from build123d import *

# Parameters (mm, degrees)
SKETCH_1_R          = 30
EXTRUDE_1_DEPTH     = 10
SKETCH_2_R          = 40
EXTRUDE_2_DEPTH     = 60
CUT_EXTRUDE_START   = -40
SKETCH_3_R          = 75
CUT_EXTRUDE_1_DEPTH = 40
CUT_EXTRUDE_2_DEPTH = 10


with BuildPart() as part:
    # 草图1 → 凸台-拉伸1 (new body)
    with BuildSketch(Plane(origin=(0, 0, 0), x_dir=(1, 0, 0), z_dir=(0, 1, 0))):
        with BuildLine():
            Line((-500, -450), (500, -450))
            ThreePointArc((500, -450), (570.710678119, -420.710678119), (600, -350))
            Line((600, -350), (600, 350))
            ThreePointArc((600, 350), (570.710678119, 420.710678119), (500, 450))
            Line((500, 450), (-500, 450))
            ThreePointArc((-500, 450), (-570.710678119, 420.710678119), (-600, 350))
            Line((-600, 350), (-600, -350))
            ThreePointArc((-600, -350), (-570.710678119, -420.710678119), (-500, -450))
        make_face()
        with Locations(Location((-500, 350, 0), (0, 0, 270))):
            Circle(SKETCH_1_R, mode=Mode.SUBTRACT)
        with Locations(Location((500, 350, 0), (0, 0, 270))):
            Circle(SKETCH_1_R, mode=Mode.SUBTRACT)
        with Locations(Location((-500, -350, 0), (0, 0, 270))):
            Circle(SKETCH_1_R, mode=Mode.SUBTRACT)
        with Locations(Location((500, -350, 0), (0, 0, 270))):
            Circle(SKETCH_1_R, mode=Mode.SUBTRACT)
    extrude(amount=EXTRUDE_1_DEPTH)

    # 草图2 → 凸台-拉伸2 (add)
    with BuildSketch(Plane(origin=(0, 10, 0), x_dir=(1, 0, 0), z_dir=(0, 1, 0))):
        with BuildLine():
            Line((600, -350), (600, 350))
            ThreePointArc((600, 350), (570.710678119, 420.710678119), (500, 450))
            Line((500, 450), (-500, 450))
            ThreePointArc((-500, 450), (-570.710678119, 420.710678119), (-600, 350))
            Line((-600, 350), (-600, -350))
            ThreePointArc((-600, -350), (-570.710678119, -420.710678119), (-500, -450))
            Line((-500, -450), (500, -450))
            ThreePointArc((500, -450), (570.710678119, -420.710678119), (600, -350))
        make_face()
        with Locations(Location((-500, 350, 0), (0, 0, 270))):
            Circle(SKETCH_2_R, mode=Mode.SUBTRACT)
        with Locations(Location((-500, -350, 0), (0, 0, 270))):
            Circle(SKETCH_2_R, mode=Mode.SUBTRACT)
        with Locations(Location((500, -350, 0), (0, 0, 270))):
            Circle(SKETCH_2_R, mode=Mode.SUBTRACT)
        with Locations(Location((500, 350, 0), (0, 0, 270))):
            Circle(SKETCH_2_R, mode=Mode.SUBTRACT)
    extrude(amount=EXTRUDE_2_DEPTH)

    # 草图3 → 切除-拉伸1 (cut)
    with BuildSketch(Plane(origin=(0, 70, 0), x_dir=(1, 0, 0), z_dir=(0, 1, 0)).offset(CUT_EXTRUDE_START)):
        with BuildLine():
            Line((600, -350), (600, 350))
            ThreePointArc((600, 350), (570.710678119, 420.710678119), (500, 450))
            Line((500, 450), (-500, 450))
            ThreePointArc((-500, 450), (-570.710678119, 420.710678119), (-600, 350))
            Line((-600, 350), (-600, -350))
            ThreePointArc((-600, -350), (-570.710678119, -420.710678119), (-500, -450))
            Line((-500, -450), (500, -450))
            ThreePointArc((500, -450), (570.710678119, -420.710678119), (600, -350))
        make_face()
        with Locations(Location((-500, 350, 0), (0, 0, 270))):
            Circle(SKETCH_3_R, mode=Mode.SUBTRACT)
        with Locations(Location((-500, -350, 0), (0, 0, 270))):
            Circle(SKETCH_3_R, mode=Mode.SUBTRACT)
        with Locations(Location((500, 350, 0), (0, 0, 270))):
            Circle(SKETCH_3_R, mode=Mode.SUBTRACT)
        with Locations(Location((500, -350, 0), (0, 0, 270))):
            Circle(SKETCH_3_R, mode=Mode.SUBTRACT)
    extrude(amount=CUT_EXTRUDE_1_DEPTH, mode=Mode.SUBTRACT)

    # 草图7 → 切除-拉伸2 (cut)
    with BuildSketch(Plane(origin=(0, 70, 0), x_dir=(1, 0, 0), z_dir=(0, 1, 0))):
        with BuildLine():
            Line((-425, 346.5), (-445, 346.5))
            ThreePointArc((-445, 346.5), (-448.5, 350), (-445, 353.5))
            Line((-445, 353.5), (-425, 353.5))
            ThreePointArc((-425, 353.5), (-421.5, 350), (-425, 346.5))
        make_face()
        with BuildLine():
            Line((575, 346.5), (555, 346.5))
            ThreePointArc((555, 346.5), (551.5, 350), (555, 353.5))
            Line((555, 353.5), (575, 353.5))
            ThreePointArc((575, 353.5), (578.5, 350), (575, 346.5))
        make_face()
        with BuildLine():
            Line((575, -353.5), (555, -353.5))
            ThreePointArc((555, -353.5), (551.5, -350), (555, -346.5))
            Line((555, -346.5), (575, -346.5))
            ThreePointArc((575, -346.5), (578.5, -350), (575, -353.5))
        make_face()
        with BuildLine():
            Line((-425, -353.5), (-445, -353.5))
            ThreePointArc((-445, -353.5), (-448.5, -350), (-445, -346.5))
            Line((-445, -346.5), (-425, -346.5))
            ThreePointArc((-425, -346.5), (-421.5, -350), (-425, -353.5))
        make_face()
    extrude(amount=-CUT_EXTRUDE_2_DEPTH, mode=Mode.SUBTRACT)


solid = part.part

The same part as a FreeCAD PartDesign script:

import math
import FreeCAD as App
import Part
import Sketcher

V = App.Vector
Q = App.Units.Quantity

doc = App.newDocument("Part")
body = doc.addObject("PartDesign::Body", "Body")

# Sketch on XZ plane
sketch1 = doc.addObject("Sketcher::SketchObject", "Sketch")
body.addObject(sketch1)
sketch1.AttachmentSupport = (doc.XZ_Plane, [""])
sketch1.MapMode = "FlatFace"
sketch1.addGeometry([
    Part.LineSegment(V(-500, 450, 0), V(500, 450, 0)),  # 0
    Part.ArcOfCircle(Part.Circle(V(500, 350, 0), V(0, 0, 1), 100), math.radians(0), math.radians(90)),  # 1
    Part.LineSegment(V(600, 350, 0), V(600, -350, 0)),  # 2
    Part.ArcOfCircle(Part.Circle(V(500, -350, 0), V(0, 0, 1), 100), math.radians(-90), math.radians(0)),  # 3
    Part.LineSegment(V(500, -450, 0), V(-500, -450, 0)),  # 4
    Part.ArcOfCircle(Part.Circle(V(-500, -350, 0), V(0, 0, 1), 100), math.radians(180), math.radians(270)),  # 5
    Part.LineSegment(V(-600, -350, 0), V(-600, 350, 0)),  # 6
    Part.ArcOfCircle(Part.Circle(V(-500, 350, 0), V(0, 0, 1), 100), math.radians(90), math.radians(180)),  # 7
    Part.Circle(V(-500, 350, 0), V(0, 0, 1), 30),  # 8
    Part.Circle(V(500, 350, 0), V(0, 0, 1), 30),  # 9
    Part.Circle(V(-500, -350, 0), V(0, 0, 1), 30),  # 10
    Part.Circle(V(500, -350, 0), V(0, 0, 1), 30),  # 11
], False)
sketch1.addConstraint([
    Sketcher.Constraint("Tangent", 0, 2, 1, 2),
    Sketcher.Constraint("Tangent", 1, 1, 2, 1),
    Sketcher.Constraint("Tangent", 2, 2, 3, 2),
    Sketcher.Constraint("Tangent", 3, 1, 4, 1),
    Sketcher.Constraint("Tangent", 4, 2, 5, 2),
    Sketcher.Constraint("Tangent", 5, 1, 6, 1),
    Sketcher.Constraint("Tangent", 6, 2, 7, 2),
    Sketcher.Constraint("Tangent", 7, 1, 0, 1),
    Sketcher.Constraint("Horizontal", 0),
    Sketcher.Constraint("Vertical", 2),
    Sketcher.Constraint("Horizontal", 4),
    Sketcher.Constraint("Vertical", 6),
    Sketcher.Constraint("Coincident", 8, 3, 7, 3),
    Sketcher.Constraint("Coincident", 9, 3, 1, 3),
    Sketcher.Constraint("Coincident", 10, 3, 5, 3),
    Sketcher.Constraint("Coincident", 11, 3, 3, 3),
    Sketcher.Constraint("Equal", 1, 3),
    Sketcher.Constraint("Equal", 3, 5),
    Sketcher.Constraint("Equal", 5, 7),
    Sketcher.Constraint("Equal", 8, 9),
    Sketcher.Constraint("Equal", 9, 10),
    Sketcher.Constraint("Equal", 10, 11),
    Sketcher.Constraint("Symmetric", 1, 3, 5, 3, -1, 1),
    Sketcher.Constraint("Diameter", 8, Q("60 mm")),
    Sketcher.Constraint("Radius", 1, Q("100 mm")),
    Sketcher.Constraint("DistanceX", 0, 1, 0, 2, Q("1000 mm")),
    Sketcher.Constraint("DistanceY", 2, 2, 2, 1, Q("700 mm")),
])
pad1 = doc.addObject("PartDesign::Pad", "Pad")
body.addObject(pad1)
pad1.Profile = sketch1
pad1.Length = 10
pad1.Reversed = True

# Sketch on XZ plane
sketch2 = doc.addObject("Sketcher::SketchObject", "Sketch001")
body.addObject(sketch2)
sketch2.AttachmentSupport = (doc.XZ_Plane, [""])
sketch2.MapMode = "FlatFace"
sketch2.AttachmentOffset = App.Placement(V(0, 0, -10), App.Rotation())
sketch2.addGeometry([
    Part.LineSegment(V(600, 350, 0), V(600, -350, 0)),  # 0
    Part.ArcOfCircle(Part.Circle(V(500, -350, 0), V(0, 0, 1), 100), math.radians(-90), math.radians(0)),  # 1
    Part.LineSegment(V(500, -450, 0), V(-500, -450, 0)),  # 2
    Part.ArcOfCircle(Part.Circle(V(-500, -350, 0), V(0, 0, 1), 100), math.radians(180), math.radians(270)),  # 3
    Part.LineSegment(V(-600, -350, 0), V(-600, 350, 0)),  # 4
    Part.ArcOfCircle(Part.Circle(V(-500, 350, 0), V(0, 0, 1), 100), math.radians(90), math.radians(180)),  # 5
    Part.LineSegment(V(-500, 450, 0), V(500, 450, 0)),  # 6
    Part.ArcOfCircle(Part.Circle(V(500, 350, 0), V(0, 0, 1), 100), math.radians(0), math.radians(90)),  # 7
    Part.Circle(V(-500, 350, 0), V(0, 0, 1), 40),  # 8
    Part.Circle(V(500, 350, 0), V(0, 0, 1), 40),  # 9
    Part.Circle(V(-500, -350, 0), V(0, 0, 1), 40),  # 10
    Part.Circle(V(500, -350, 0), V(0, 0, 1), 40),  # 11
], False)
sketch2.addConstraint([
    Sketcher.Constraint("Tangent", 0, 2, 1, 2),
    Sketcher.Constraint("Tangent", 1, 1, 2, 1),
    Sketcher.Constraint("Tangent", 2, 2, 3, 2),
    Sketcher.Constraint("Tangent", 3, 1, 4, 1),
    Sketcher.Constraint("Tangent", 4, 2, 5, 2),
    Sketcher.Constraint("Tangent", 5, 1, 6, 1),
    Sketcher.Constraint("Tangent", 6, 2, 7, 2),
    Sketcher.Constraint("Tangent", 7, 1, 0, 1),
    Sketcher.Constraint("Vertical", 0),
    Sketcher.Constraint("Horizontal", 2),
    Sketcher.Constraint("Vertical", 4),
    Sketcher.Constraint("Horizontal", 6),
    Sketcher.Constraint("Coincident", 8, 3, 5, 3),
    Sketcher.Constraint("Coincident", 9, 3, 7, 3),
    Sketcher.Constraint("Coincident", 10, 3, 3, 3),
    Sketcher.Constraint("Coincident", 11, 3, 1, 3),
    Sketcher.Constraint("Equal", 1, 3),
    Sketcher.Constraint("Equal", 3, 5),
    Sketcher.Constraint("Equal", 5, 7),
    Sketcher.Constraint("Equal", 8, 9),
    Sketcher.Constraint("Equal", 9, 10),
    Sketcher.Constraint("Equal", 10, 11),
    Sketcher.Constraint("Symmetric", 1, 3, 5, 3, -1, 1),
    Sketcher.Constraint("Diameter", 8, Q("80 mm")),
    Sketcher.Constraint("Radius", 1, Q("100 mm")),
    Sketcher.Constraint("DistanceX", 2, 2, 2, 1, Q("1000 mm")),
    Sketcher.Constraint("DistanceY", 0, 2, 0, 1, Q("700 mm")),
])
pad2 = doc.addObject("PartDesign::Pad", "Pad001")
body.addObject(pad2)
pad2.Profile = sketch2
pad2.Length = 60
pad2.Reversed = True

# Sketch on XZ plane
sketch3 = doc.addObject("Sketcher::SketchObject", "Sketch002")
body.addObject(sketch3)
sketch3.AttachmentSupport = (doc.XZ_Plane, [""])
sketch3.MapMode = "FlatFace"
sketch3.AttachmentOffset = App.Placement(V(0, 0, -30), App.Rotation())
sketch3.addGeometry([
    Part.LineSegment(V(600, 350, 0), V(600, -350, 0)),  # 0
    Part.ArcOfCircle(Part.Circle(V(500, -350, 0), V(0, 0, 1), 100), math.radians(-90), math.radians(0)),  # 1
    Part.LineSegment(V(500, -450, 0), V(-500, -450, 0)),  # 2
    Part.ArcOfCircle(Part.Circle(V(-500, -350, 0), V(0, 0, 1), 100), math.radians(180), math.radians(270)),  # 3
    Part.LineSegment(V(-600, -350, 0), V(-600, 350, 0)),  # 4
    Part.ArcOfCircle(Part.Circle(V(-500, 350, 0), V(0, 0, 1), 100), math.radians(90), math.radians(180)),  # 5
    Part.LineSegment(V(-500, 450, 0), V(500, 450, 0)),  # 6
    Part.ArcOfCircle(Part.Circle(V(500, 350, 0), V(0, 0, 1), 100), math.radians(0), math.radians(90)),  # 7
    Part.Circle(V(-500, 350, 0), V(0, 0, 1), 75),  # 8
    Part.Circle(V(500, 350, 0), V(0, 0, 1), 75),  # 9
    Part.Circle(V(-500, -350, 0), V(0, 0, 1), 75),  # 10
    Part.Circle(V(500, -350, 0), V(0, 0, 1), 75),  # 11
], False)
sketch3.addConstraint([
    Sketcher.Constraint("Tangent", 0, 2, 1, 2),
    Sketcher.Constraint("Tangent", 1, 1, 2, 1),
    Sketcher.Constraint("Tangent", 2, 2, 3, 2),
    Sketcher.Constraint("Tangent", 3, 1, 4, 1),
    Sketcher.Constraint("Tangent", 4, 2, 5, 2),
    Sketcher.Constraint("Tangent", 5, 1, 6, 1),
    Sketcher.Constraint("Tangent", 6, 2, 7, 2),
    Sketcher.Constraint("Tangent", 7, 1, 0, 1),
    Sketcher.Constraint("Vertical", 0),
    Sketcher.Constraint("Horizontal", 2),
    Sketcher.Constraint("Vertical", 4),
    Sketcher.Constraint("Horizontal", 6),
    Sketcher.Constraint("Coincident", 8, 3, 5, 3),
    Sketcher.Constraint("Coincident", 9, 3, 7, 3),
    Sketcher.Constraint("Coincident", 10, 3, 3, 3),
    Sketcher.Constraint("Coincident", 11, 3, 1, 3),
    Sketcher.Constraint("Equal", 1, 3),
    Sketcher.Constraint("Equal", 3, 5),
    Sketcher.Constraint("Equal", 5, 7),
    Sketcher.Constraint("Equal", 8, 9),
    Sketcher.Constraint("Equal", 9, 10),
    Sketcher.Constraint("Equal", 10, 11),
    Sketcher.Constraint("Symmetric", 1, 3, 5, 3, -1, 1),
    Sketcher.Constraint("Diameter", 8, Q("150 mm")),
    Sketcher.Constraint("Radius", 1, Q("100 mm")),
    Sketcher.Constraint("DistanceX", 2, 2, 2, 1, Q("1000 mm")),
    Sketcher.Constraint("DistanceY", 0, 2, 0, 1, Q("700 mm")),
])
pocket1 = doc.addObject("PartDesign::Pocket", "Pocket")
body.addObject(pocket1)
pocket1.Profile = sketch3
pocket1.Length = 40

# Sketch on XZ plane
sketch4 = doc.addObject("Sketcher::SketchObject", "Sketch003")
body.addObject(sketch4)
sketch4.AttachmentSupport = (doc.XZ_Plane, [""])
sketch4.MapMode = "FlatFace"
sketch4.AttachmentOffset = App.Placement(V(0, 0, -70), App.Rotation())
sketch4.addGeometry([
    Part.LineSegment(V(-445, -346.5, 0), V(-425, -346.5, 0)),  # 0
    Part.ArcOfCircle(Part.Circle(V(-425, -350, 0), V(0, 0, 1), 3.5), math.radians(-90), math.radians(90)),  # 1
    Part.LineSegment(V(-425, -353.5, 0), V(-445, -353.5, 0)),  # 2
    Part.ArcOfCircle(Part.Circle(V(-445, -350, 0), V(0, 0, 1), 3.5), math.radians(90), math.radians(270)),  # 3
    Part.LineSegment(V(555, -346.5, 0), V(575, -346.5, 0)),  # 4
    Part.ArcOfCircle(Part.Circle(V(575, -350, 0), V(0, 0, 1), 3.5), math.radians(-90), math.radians(90)),  # 5
    Part.LineSegment(V(575, -353.5, 0), V(555, -353.5, 0)),  # 6
    Part.ArcOfCircle(Part.Circle(V(555, -350, 0), V(0, 0, 1), 3.5), math.radians(90), math.radians(270)),  # 7
    Part.LineSegment(V(555, 353.5, 0), V(575, 353.5, 0)),  # 8
    Part.ArcOfCircle(Part.Circle(V(575, 350, 0), V(0, 0, 1), 3.5), math.radians(-90), math.radians(90)),  # 9
    Part.LineSegment(V(575, 346.5, 0), V(555, 346.5, 0)),  # 10
    Part.ArcOfCircle(Part.Circle(V(555, 350, 0), V(0, 0, 1), 3.5), math.radians(90), math.radians(270)),  # 11
    Part.LineSegment(V(-445, 353.5, 0), V(-425, 353.5, 0)),  # 12
    Part.ArcOfCircle(Part.Circle(V(-425, 350, 0), V(0, 0, 1), 3.5), math.radians(-90), math.radians(90)),  # 13
    Part.LineSegment(V(-425, 346.5, 0), V(-445, 346.5, 0)),  # 14
    Part.ArcOfCircle(Part.Circle(V(-445, 350, 0), V(0, 0, 1), 3.5), math.radians(90), math.radians(270)),  # 15
], False)
sketch4.addConstraint([
    Sketcher.Constraint("Tangent", 0, 2, 1, 2),
    Sketcher.Constraint("Tangent", 1, 1, 2, 1),
    Sketcher.Constraint("Tangent", 2, 2, 3, 2),
    Sketcher.Constraint("Tangent", 3, 1, 0, 1),
    Sketcher.Constraint("Tangent", 4, 2, 5, 2),
    Sketcher.Constraint("Tangent", 5, 1, 6, 1),
    Sketcher.Constraint("Tangent", 6, 2, 7, 2),
    Sketcher.Constraint("Tangent", 7, 1, 4, 1),
    Sketcher.Constraint("Tangent", 8, 2, 9, 2),
    Sketcher.Constraint("Tangent", 9, 1, 10, 1),
    Sketcher.Constraint("Tangent", 10, 2, 11, 2),
    Sketcher.Constraint("Tangent", 11, 1, 8, 1),
    Sketcher.Constraint("Tangent", 12, 2, 13, 2),
    Sketcher.Constraint("Tangent", 13, 1, 14, 1),
    Sketcher.Constraint("Tangent", 14, 2, 15, 2),
    Sketcher.Constraint("Tangent", 15, 1, 12, 1),
    Sketcher.Constraint("Horizontal", 0),
    Sketcher.Constraint("Horizontal", 2),
    Sketcher.Constraint("Horizontal", 4),
    Sketcher.Constraint("Horizontal", 6),
    Sketcher.Constraint("Horizontal", 8),
    Sketcher.Constraint("Horizontal", 10),
    Sketcher.Constraint("Horizontal", 12),
    Sketcher.Constraint("Horizontal", 14),
    Sketcher.Constraint("Equal", 3, 5),
    Sketcher.Constraint("Equal", 7, 9),
    Sketcher.Constraint("Equal", 11, 13),
    Sketcher.Constraint("Symmetric", 5, 3, 9, 3, -1),
    Sketcher.Constraint("Symmetric", 1, 3, 13, 3, -1),
    Sketcher.Constraint("Horizontal", 3, 3, 5, 3),
    Sketcher.Constraint("Vertical", 7, 3, 11, 3),
    Sketcher.Constraint("Vertical", 3, 3, 15, 3),
    Sketcher.Constraint("Equal", 2, 4),
    Sketcher.Constraint("Radius", 1, Q("3.5 mm")),
    Sketcher.Constraint("DistanceX", 0, 1, 0, 2, Q("20 mm")),
    Sketcher.Constraint("DistanceX", 1, 3, -1, 1, Q("425 mm")),
    Sketcher.Constraint("DistanceY", 1, 3, -1, 1, Q("350 mm")),
    Sketcher.Constraint("DistanceX", -1, 1, 5, 3, Q("575 mm")),
])
pocket2 = doc.addObject("PartDesign::Pocket", "Pocket001")
body.addObject(pocket2)
pocket2.Profile = sketch4
pocket2.Length = 10
pocket2.Reversed = True

doc.recompute()
